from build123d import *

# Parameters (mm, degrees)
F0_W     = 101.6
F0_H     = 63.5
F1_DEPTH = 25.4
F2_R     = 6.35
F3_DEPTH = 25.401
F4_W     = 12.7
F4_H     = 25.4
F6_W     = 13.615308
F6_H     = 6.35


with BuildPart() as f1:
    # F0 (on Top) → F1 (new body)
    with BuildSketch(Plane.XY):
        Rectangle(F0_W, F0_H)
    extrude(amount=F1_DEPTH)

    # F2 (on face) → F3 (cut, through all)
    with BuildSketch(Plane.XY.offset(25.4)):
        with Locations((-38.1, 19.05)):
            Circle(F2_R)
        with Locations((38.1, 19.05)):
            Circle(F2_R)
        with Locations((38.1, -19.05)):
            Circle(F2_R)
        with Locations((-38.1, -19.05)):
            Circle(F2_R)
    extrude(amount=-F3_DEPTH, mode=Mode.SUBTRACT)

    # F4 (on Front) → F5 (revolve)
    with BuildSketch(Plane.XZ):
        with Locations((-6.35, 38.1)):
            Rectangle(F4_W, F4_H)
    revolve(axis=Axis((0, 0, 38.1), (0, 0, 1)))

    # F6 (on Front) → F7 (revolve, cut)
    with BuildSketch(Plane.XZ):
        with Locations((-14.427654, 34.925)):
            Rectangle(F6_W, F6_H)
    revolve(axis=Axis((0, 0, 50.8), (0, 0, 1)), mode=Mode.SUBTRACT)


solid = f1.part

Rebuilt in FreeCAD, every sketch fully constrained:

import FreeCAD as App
import Part
import Sketcher
from FreeCAD import Vector
Q = App.Units.Quantity


def add_polygon(sketch, points):
    """Adds a closed chain of lines whose ends are joined by coincident constraints."""
    first, n = sketch.GeometryCount, len(points)
    for a, b in zip(points, points[1:] + points[:1]):
        sketch.addGeometry(Part.LineSegment(App.Vector(*a, 0), App.Vector(*b, 0)), False)
    for i in range(n):
        sketch.addConstraint(Sketcher.Constraint("Coincident", first + i, 2, first + (i + 1) % n, 1))

doc = App.newDocument("Part")
body = doc.addObject("PartDesign::Body", "Body")

# Sketch on XY plane
sketch1 = body.newObject("Sketcher::SketchObject", "Sketch")
sketch1.AttachmentSupport = (doc.getObject("XY_Plane"), [""])
sketch1.MapMode = "FlatFace"
add_polygon(sketch1, [(-51, 32), (-51, -32), (51, -32), (51, 32)])  # lines 0-3
sketch1.addConstraint(Sketcher.Constraint("Vertical", 0))
sketch1.addConstraint(Sketcher.Constraint("Horizontal", 1))
sketch1.addConstraint(Sketcher.Constraint("Vertical", 2))
sketch1.addConstraint(Sketcher.Constraint("Horizontal", 3))
sketch1.addConstraint(Sketcher.Constraint("Symmetric", 0, 2, 2, 2, -1, 1))
sketch1.addConstraint(Sketcher.Constraint("DistanceX", 1, 1, 1, 2, Q("4 in")))
sketch1.addConstraint(Sketcher.Constraint("DistanceY", 0, 2, 0, 1, Q("2.5 in")))
pad1 = body.newObject("PartDesign::Pad", "Pad")
pad1.Profile = sketch1
pad1.Length = Q("1 in")

# Sketch on XY plane
sketch2 = body.newObject("Sketcher::SketchObject", "Sketch001")
sketch2.AttachmentSupport = (doc.getObject("XY_Plane"), [""])
sketch2.MapMode = "FlatFace"
sketch2.AttachmentOffset = App.Placement(Vector(0, 0, 1 * 25.4), App.Rotation())
sketch2.addGeometry(Part.Circle(Vector(-38, 19, 0), Vector(0, 0, 1), 6), False)
sketch2.addGeometry(Part.Circle(Vector(38, 19, 0), Vector(0, 0, 1), 6), False)
sketch2.addGeometry(Part.Circle(Vector(38, -19, 0), Vector(0, 0, 1), 6), False)
sketch2.addGeometry(Part.Circle(Vector(-38, -19, 0), Vector(0, 0, 1), 6), False)
sketch2.addConstraint(Sketcher.Constraint("Equal", 0, 1))
sketch2.addConstraint(Sketcher.Constraint("Equal", 1, 2))
sketch2.addConstraint(Sketcher.Constraint("Equal", 2, 3))
sketch2.addConstraint(Sketcher.Constraint("Symmetric", 0, 3, 2, 3, -1, 1))
sketch2.addConstraint(Sketcher.Constraint("Symmetric", 1, 3, 3, 3, -1, 1))
sketch2.addConstraint(Sketcher.Constraint("Symmetric", 0, 3, 1, 3, -2))
sketch2.addConstraint(Sketcher.Constraint("Diameter", 0, Q("0.5 in")))
sketch2.addConstraint(Sketcher.Constraint("DistanceX", 0, 3, 1, 3, Q("3 in")))
sketch2.addConstraint(Sketcher.Constraint("DistanceY", 2, 3, 1, 3, Q("1.5 in")))
pocket1 = body.newObject("PartDesign::Pocket", "Pocket")
pocket1.Profile = sketch2
pocket1.Type = "ThroughAll"

# Sketch on XZ plane
sketch3 = body.newObject("Sketcher::SketchObject", "Sketch002")
sketch3.AttachmentSupport = (doc.getObject("XZ_Plane"), [""])
sketch3.MapMode = "FlatFace"
add_polygon(sketch3, [(-13, 51), (-13, 25), (0, 25), (0, 51)])  # lines 0-3
sketch3.addConstraint(Sketcher.Constraint("Vertical", 0))
sketch3.addConstraint(Sketcher.Constraint("Horizontal", 1))
sketch3.addConstraint(Sketcher.Constraint("Vertical", 2))
sketch3.addConstraint(Sketcher.Constraint("Horizontal", 3))
sketch3.addConstraint(Sketcher.Constraint("PointOnObject", 1, 2, -2))
sketch3.addConstraint(Sketcher.Constraint("DistanceY", 0, 2, 0, 1, Q("1 in")))
sketch3.addConstraint(Sketcher.Constraint("DistanceX", 1, 1, 1, 2, Q("0.5 in")))
sketch3.addConstraint(Sketcher.Constraint("DistanceY", -1, 1, 0, 2, Q("1 in")))
revolution = body.newObject("PartDesign::Revolution", "Revolution")
revolution.Profile = sketch3
revolution.ReferenceAxis = (sketch3, ["V_Axis"])
revolution.Angle = 360

# Sketch on XZ plane
sketch4 = body.newObject("Sketcher::SketchObject", "Sketch003")
sketch4.AttachmentSupport = (doc.getObject("XZ_Plane"), [""])
sketch4.MapMode = "FlatFace"
add_polygon(sketch4, [(-21, 38), (-21, 32), (-8, 32), (-8, 38)])  # lines 0-3
sketch4.addConstraint(Sketcher.Constraint("Vertical", 0))
sketch4.addConstraint(Sketcher.Constraint("Horizontal", 1))
sketch4.addConstraint(Sketcher.Constraint("Vertical", 2))
sketch4.addConstraint(Sketcher.Constraint("Horizontal", 3))
sketch4.addConstraint(Sketcher.Constraint("DistanceY", 0, 2, 0, 1, Q("0.25 in")))
sketch4.addConstraint(Sketcher.Constraint("DistanceX", 1, 2, -1, 1, Q("0.3 in")))
sketch4.addConstraint(Sketcher.Constraint("DistanceY", -1, 1, 2, 2, Q("1.5 in")))
sketch4.addConstraint(Sketcher.Constraint("DistanceX", 1, 1, 1, 2, 13.615308))
groove = body.newObject("PartDesign::Groove", "Groove")
groove.Profile = sketch4
groove.ReferenceAxis = (sketch4, ["V_Axis"])
groove.Angle = 360

doc.recompute()
